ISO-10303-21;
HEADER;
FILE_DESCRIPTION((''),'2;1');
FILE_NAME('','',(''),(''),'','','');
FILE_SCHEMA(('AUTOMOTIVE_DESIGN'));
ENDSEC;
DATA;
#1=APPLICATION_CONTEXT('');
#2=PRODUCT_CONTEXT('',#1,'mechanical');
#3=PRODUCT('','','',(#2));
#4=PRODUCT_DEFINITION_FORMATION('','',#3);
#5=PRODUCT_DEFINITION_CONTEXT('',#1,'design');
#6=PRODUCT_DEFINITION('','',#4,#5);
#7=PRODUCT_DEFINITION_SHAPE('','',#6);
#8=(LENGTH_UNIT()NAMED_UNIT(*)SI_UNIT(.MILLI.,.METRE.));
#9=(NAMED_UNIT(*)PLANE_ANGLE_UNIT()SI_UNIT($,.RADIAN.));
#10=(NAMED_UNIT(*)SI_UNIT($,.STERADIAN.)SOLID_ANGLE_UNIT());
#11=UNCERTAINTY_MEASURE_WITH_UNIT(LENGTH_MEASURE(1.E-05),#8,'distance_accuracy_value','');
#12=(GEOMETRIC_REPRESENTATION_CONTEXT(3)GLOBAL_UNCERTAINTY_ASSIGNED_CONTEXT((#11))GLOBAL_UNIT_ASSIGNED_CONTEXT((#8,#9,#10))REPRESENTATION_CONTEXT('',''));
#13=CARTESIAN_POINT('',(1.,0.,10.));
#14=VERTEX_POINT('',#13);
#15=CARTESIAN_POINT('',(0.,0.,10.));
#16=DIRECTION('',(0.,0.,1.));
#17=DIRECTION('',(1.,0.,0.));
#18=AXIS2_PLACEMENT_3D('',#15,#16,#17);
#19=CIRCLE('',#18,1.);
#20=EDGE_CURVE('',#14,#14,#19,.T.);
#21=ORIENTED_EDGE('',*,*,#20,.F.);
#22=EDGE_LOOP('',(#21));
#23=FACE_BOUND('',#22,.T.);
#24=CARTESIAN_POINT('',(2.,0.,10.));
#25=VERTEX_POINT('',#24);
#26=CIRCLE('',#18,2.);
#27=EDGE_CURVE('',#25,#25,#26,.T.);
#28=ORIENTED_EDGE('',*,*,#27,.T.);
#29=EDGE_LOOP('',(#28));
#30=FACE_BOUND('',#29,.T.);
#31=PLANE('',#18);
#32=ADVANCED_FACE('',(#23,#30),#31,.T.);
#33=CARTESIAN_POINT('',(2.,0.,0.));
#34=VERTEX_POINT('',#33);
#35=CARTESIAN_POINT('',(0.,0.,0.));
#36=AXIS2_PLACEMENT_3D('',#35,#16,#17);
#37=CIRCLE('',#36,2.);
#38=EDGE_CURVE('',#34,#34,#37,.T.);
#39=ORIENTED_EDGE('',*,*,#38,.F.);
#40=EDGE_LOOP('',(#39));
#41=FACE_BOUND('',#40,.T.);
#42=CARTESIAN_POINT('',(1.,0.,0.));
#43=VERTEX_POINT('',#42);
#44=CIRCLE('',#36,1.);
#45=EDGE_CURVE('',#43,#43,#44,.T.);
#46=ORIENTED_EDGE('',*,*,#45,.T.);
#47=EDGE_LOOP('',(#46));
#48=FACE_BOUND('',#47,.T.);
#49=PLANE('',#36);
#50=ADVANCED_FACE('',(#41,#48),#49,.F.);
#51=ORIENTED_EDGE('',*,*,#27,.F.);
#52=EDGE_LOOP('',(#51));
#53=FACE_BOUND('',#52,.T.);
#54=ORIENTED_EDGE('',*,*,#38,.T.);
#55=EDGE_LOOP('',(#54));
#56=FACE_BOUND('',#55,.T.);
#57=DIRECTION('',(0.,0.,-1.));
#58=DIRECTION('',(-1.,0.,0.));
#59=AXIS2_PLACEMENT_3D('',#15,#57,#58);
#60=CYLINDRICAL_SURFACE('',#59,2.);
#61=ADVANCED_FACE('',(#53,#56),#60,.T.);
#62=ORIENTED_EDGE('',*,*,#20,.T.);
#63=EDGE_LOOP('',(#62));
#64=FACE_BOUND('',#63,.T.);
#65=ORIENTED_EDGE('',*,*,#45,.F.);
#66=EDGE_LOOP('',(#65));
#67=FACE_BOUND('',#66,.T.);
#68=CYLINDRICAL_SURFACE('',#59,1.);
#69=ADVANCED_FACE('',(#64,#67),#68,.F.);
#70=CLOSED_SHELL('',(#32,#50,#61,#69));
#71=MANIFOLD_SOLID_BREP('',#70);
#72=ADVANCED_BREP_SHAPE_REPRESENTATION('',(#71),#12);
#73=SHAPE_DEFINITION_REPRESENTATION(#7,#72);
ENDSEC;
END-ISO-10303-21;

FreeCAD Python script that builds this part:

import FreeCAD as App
import Part
import Sketcher

doc = App.newDocument("Part")
body = doc.addObject("PartDesign::Body", "Body")

# Sketch on XY plane
sketch1 = doc.addObject("Sketcher::SketchObject", "Sketch")
body.addObject(sketch1)
sketch1.AttachmentSupport = (doc.XY_Plane, [""])
sketch1.MapMode = "FlatFace"
sketch1.addGeometry([
    Part.Circle(App.Vector(0, 0, 0), App.Vector(0, 0, 1), 2),
    Part.Circle(App.Vector(0, 0, 0), App.Vector(0, 0, 1), 1),
], False)
sketch1.addConstraint([
    Sketcher.Constraint("Coincident", 0, 3, -1, 1),
    Sketcher.Constraint("Coincident", 1, 3, -1, 1),
    Sketcher.Constraint("Diameter", 0, 4.0),
    Sketcher.Constraint("Diameter", 1, 2.0),
])
pad1 = doc.addObject("PartDesign::Pad", "Pad")
body.addObject(pad1)
pad1.Profile = sketch1
pad1.Length = 10

doc.recompute()
